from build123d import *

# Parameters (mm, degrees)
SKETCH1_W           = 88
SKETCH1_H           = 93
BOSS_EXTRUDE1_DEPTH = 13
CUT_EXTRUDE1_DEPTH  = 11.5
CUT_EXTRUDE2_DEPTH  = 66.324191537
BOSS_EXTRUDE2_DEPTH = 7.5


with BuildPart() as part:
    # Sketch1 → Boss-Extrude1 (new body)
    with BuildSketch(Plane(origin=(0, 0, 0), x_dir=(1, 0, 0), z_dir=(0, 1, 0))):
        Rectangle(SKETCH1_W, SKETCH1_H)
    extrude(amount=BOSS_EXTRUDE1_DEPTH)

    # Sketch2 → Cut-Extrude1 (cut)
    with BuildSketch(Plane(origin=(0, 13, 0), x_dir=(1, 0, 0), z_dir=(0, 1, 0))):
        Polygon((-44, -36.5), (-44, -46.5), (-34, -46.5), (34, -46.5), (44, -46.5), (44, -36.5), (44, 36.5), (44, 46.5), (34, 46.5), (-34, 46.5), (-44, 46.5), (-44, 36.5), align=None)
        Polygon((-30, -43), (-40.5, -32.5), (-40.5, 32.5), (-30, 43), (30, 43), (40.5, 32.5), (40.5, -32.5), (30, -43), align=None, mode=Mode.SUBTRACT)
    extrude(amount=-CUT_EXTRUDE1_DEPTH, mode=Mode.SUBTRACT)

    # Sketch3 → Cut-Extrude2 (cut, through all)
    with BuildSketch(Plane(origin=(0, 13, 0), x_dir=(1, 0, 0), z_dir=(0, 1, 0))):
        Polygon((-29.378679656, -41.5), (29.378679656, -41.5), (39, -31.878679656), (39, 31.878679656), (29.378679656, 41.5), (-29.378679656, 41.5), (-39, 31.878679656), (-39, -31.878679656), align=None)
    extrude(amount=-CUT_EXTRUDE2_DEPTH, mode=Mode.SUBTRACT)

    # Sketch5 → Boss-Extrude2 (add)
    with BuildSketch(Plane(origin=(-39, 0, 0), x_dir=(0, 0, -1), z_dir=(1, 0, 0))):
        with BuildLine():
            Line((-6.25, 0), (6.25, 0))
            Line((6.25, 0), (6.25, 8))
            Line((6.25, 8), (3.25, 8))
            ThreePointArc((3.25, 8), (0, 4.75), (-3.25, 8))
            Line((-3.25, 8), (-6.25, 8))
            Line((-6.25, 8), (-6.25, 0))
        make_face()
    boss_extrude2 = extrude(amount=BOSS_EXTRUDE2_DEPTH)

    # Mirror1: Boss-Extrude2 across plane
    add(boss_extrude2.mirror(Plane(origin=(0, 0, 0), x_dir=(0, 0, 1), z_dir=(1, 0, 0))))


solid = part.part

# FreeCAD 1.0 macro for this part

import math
import FreeCAD as App
import Part
import Sketcher

V = App.Vector


def add_polygon(sketch, points):
    """Adds a closed chain of lines whose ends are joined by coincident constraints."""
    first, n = sketch.GeometryCount, len(points)
    for a, b in zip(points, points[1:] + points[:1]):
        sketch.addGeometry(Part.LineSegment(App.Vector(*a, 0), App.Vector(*b, 0)), False)
    for i in range(n):
        sketch.addConstraint(Sketcher.Constraint("Coincident", first + i, 2, first + (i + 1) % n, 1))

doc = App.newDocument("Part")
params = doc.addObject("Spreadsheet::Sheet", "Params")
for row, (alias, value) in enumerate([
    ("sketch1_width", "88 mm"),
    ("sketch1_height", "93 mm"),
    ("pad1_length", "13 mm"),
    ("sketch2_width", "88 mm"),
    ("sketch2_width2", "60 mm"),
    ("sketch2_height", "93 mm"),
    ("sketch2_height2", "65 mm"),
    ("pocket1_length", "11.5 mm"),
    ("sketch4_width", "8 mm"),
    ("sketch4_height", "3 mm"),
    ("sketch4_radius", "3.25 mm"),
    ("pad2_length", "7.5 mm"),
], start=1):
    params.set(f"A{row}", alias)
    params.set(f"B{row}", "=" + value)
    params.setAlias(f"B{row}", alias)

body = doc.addObject("PartDesign::Body", "Body")

# Sketch on XZ plane
sketch1 = body.newObject("Sketcher::SketchObject", "Sketch")
sketch1.AttachmentSupport = (doc.getObject("XZ_Plane"), [""])
sketch1.MapMode = "FlatFace"
add_polygon(sketch1, [(-44, -46), (-44, 46), (44, 46), (44, -46)])  # lines 0-3
sketch1.addConstraint([
    Sketcher.Constraint("Vertical", 0),
    Sketcher.Constraint("Horizontal", 1),
    Sketcher.Constraint("Vertical", 2),
    Sketcher.Constraint("Horizontal", 3),
    Sketcher.Constraint("Symmetric", 0, 2, 2, 2, -1, 1),
    Sketcher.Constraint("DistanceX", 1, 1, 1, 2, 88.0),
    Sketcher.Constraint("DistanceY", 0, 1, 0, 2, 93.0),
])
sketch1.setExpression("Constraints[9]", "Params.sketch1_width")
sketch1.setExpression("Constraints[10]", "Params.sketch1_height")
pad1 = body.newObject("PartDesign::Pad", "Pad")
pad1.Profile = sketch1
pad1.setExpression("Length", "Params.pad1_length")
pad1.Reversed = True

# Sketch on XZ plane
sketch2 = body.newObject("Sketcher::SketchObject", "Sketch001")
sketch2.AttachmentSupport = (doc.getObject("XZ_Plane"), [""])
sketch2.MapMode = "FlatFace"
sketch2.AttachmentOffset = App.Placement(V(0, 0, -13), App.Rotation())
add_polygon(sketch2, [(-44, 46), (44, 46), (44, -46), (-44, -46)])  # lines 0-3
add_polygon(sketch2, [(30, 43), (-30, 43), (-40, 32), (-40, -32), (-30, -43), (30, -43), (40, -32), (40, 32)])  # lines 4-11
sketch2.addConstraint([
    Sketcher.Constraint("Horizontal", 0),
    Sketcher.Constraint("Vertical", 1),
    Sketcher.Constraint("Horizontal", 2),
    Sketcher.Constraint("Vertical", 3),
    Sketcher.Constraint("Horizontal", 4),
    Sketcher.Constraint("Vertical", 6),
    Sketcher.Constraint("Horizontal", 8),
    Sketcher.Constraint("Vertical", 10),
    Sketcher.Constraint("Symmetric", 0, 2, 2, 2, -1, 1),
    Sketcher.Constraint("Symmetric", 4, 2, 8, 2, -1, 1),
    Sketcher.Constraint("Symmetric", 5, 2, 9, 2, -1, 1),
    Sketcher.Constraint("Perpendicular", 5, 7),
    Sketcher.Constraint("Perpendicular", 9, 11),
    Sketcher.Constraint("Horizontal", 6, 2, 9, 2),
    Sketcher.Constraint("Horizontal", 5, 2, 10, 2),
    Sketcher.Constraint("Vertical", 4, 2, 7, 2),
    Sketcher.Constraint("DistanceX", 0, 1, 0, 2, 88.0),
    Sketcher.Constraint("DistanceX", 4, 2, 4, 1, 60.0),
    Sketcher.Constraint("DistanceY", 1, 2, 1, 1, 93.0),
    Sketcher.Constraint("DistanceY", 6, 2, 6, 1, 65.0),
    Sketcher.Constraint("DistanceY", -1, 1, 4, 2, 43.0),
])
sketch2.setExpression("Constraints[28]", "Params.sketch2_width")
sketch2.setExpression("Constraints[29]", "Params.sketch2_width2")
sketch2.setExpression("Constraints[30]", "Params.sketch2_height")
sketch2.setExpression("Constraints[31]", "Params.sketch2_height2")
pocket1 = body.newObject("PartDesign::Pocket", "Pocket")
pocket1.Profile = sketch2
pocket1.setExpression("Length", "Params.pocket1_length")
pocket1.Reversed = True

# Sketch on XZ plane
sketch3 = body.newObject("Sketcher::SketchObject", "Sketch002")
sketch3.AttachmentSupport = (doc.getObject("XZ_Plane"), [""])
sketch3.MapMode = "FlatFace"
sketch3.AttachmentOffset = App.Placement(V(0, 0, -13), App.Rotation())
add_polygon(sketch3, [(-29, 42), (29, 42), (39, 32), (39, -32), (29, -42), (-29, -42), (-39, -32), (-39, 32)])  # lines 0-7
sketch3.addConstraint([
    Sketcher.Constraint("Horizontal", 0),
    Sketcher.Constraint("Vertical", 2),
    Sketcher.Constraint("Horizontal", 4),
    Sketcher.Constraint("Vertical", 6),
    Sketcher.Constraint("Symmetric", 0, 2, 4, 2, -1, 1),
    Sketcher.Constraint("Symmetric", 1, 2, 5, 2, -1, 1),
    Sketcher.Constraint("Perpendicular", 1, 3),
    Sketcher.Constraint("Perpendicular", 5, 7),
    Sketcher.Constraint("Horizontal", 2, 2, 5, 2),
    Sketcher.Constraint("Horizontal", 1, 2, 6, 2),
    Sketcher.Constraint("Vertical", 0, 2, 3, 2),
    Sketcher.Constraint("DistanceX", -1, 1, 1, 2, 39.0),
    Sketcher.Constraint("DistanceY", 3, 2, 0, 2, 83.0),
    Sketcher.Constraint("Distance", 1, 13.606602),
])
pocket2 = body.newObject("PartDesign::Pocket", "Pocket001")
pocket2.Profile = sketch3
pocket2.Type = "ThroughAll"
pocket2.Reversed = True

# Sketch on YZ plane
sketch4 = body.newObject("Sketcher::SketchObject", "Sketch003")
sketch4.AttachmentSupport = (doc.getObject("YZ_Plane"), [""])
sketch4.MapMode = "FlatFace"
sketch4.AttachmentOffset = App.Placement(V(0, 0, -39), App.Rotation())
sketch4.addGeometry([
    Part.LineSegment(V(0, 6.2, 0), V(0, -6.2, 0)),  # 0
    Part.LineSegment(V(0, -6.2, 0), V(8, -6.2, 0)),  # 1
    Part.LineSegment(V(8, -6.2, 0), V(8, -3.2, 0)),  # 2
    Part.ArcOfCircle(Part.Circle(V(8, 0, 0), V(0, 0, 1), 3.2), math.radians(90), math.radians(270)),  # 3
    Part.LineSegment(V(8, 3.2, 0), V(8, 6.2, 0)),  # 4
    Part.LineSegment(V(8, 6.2, 0), V(0, 6.2, 0)),  # 5
], False)
sketch4.addConstraint([
    Sketcher.Constraint("Coincident", 0, 2, 1, 1),
    Sketcher.Constraint("Coincident", 1, 2, 2, 1),
    Sketcher.Constraint("Coincident", 2, 2, 3, 2),
    Sketcher.Constraint("Coincident", 3, 1, 4, 1),
    Sketcher.Constraint("Coincident", 4, 2, 5, 1),
    Sketcher.Constraint("Coincident", 5, 2, 0, 1),
    Sketcher.Constraint("Vertical", 0),
    Sketcher.Constraint("Horizontal", 1),
    Sketcher.Constraint("Vertical", 2),
    Sketcher.Constraint("Vertical", 4),
    Sketcher.Constraint("Horizontal", 5),
    Sketcher.Constraint("Symmetric", 0, 2, 5, 2, -1, 1),
    Sketcher.Constraint("Symmetric", 2, 2, 3, 1, -1),
    Sketcher.Constraint("Vertical", 3, 3, 1, 2),
    Sketcher.Constraint("DistanceX", 1, 1, 1, 2, 8.0),
    Sketcher.Constraint("DistanceY", 2, 1, 2, 2, 3.0),
    Sketcher.Constraint("Radius", 3, 3.25),
])
sketch4.setExpression("Constraints[14]", "Params.sketch4_width")
sketch4.setExpression("Constraints[15]", "Params.sketch4_height")
sketch4.setExpression("Constraints[16]", "Params.sketch4_radius")
pad2 = body.newObject("PartDesign::Pad", "Pad001")
pad2.Profile = sketch4
pad2.setExpression("Length", "Params.pad2_length")
doc.recompute()

mirrored = body.newObject("PartDesign::Mirrored", "Mirrored")
mirrored.Originals = [pad2]
mirrored.MirrorPlane = (doc.getObject("YZ_Plane"), [""])
body.Tip = mirrored

doc.recompute()
